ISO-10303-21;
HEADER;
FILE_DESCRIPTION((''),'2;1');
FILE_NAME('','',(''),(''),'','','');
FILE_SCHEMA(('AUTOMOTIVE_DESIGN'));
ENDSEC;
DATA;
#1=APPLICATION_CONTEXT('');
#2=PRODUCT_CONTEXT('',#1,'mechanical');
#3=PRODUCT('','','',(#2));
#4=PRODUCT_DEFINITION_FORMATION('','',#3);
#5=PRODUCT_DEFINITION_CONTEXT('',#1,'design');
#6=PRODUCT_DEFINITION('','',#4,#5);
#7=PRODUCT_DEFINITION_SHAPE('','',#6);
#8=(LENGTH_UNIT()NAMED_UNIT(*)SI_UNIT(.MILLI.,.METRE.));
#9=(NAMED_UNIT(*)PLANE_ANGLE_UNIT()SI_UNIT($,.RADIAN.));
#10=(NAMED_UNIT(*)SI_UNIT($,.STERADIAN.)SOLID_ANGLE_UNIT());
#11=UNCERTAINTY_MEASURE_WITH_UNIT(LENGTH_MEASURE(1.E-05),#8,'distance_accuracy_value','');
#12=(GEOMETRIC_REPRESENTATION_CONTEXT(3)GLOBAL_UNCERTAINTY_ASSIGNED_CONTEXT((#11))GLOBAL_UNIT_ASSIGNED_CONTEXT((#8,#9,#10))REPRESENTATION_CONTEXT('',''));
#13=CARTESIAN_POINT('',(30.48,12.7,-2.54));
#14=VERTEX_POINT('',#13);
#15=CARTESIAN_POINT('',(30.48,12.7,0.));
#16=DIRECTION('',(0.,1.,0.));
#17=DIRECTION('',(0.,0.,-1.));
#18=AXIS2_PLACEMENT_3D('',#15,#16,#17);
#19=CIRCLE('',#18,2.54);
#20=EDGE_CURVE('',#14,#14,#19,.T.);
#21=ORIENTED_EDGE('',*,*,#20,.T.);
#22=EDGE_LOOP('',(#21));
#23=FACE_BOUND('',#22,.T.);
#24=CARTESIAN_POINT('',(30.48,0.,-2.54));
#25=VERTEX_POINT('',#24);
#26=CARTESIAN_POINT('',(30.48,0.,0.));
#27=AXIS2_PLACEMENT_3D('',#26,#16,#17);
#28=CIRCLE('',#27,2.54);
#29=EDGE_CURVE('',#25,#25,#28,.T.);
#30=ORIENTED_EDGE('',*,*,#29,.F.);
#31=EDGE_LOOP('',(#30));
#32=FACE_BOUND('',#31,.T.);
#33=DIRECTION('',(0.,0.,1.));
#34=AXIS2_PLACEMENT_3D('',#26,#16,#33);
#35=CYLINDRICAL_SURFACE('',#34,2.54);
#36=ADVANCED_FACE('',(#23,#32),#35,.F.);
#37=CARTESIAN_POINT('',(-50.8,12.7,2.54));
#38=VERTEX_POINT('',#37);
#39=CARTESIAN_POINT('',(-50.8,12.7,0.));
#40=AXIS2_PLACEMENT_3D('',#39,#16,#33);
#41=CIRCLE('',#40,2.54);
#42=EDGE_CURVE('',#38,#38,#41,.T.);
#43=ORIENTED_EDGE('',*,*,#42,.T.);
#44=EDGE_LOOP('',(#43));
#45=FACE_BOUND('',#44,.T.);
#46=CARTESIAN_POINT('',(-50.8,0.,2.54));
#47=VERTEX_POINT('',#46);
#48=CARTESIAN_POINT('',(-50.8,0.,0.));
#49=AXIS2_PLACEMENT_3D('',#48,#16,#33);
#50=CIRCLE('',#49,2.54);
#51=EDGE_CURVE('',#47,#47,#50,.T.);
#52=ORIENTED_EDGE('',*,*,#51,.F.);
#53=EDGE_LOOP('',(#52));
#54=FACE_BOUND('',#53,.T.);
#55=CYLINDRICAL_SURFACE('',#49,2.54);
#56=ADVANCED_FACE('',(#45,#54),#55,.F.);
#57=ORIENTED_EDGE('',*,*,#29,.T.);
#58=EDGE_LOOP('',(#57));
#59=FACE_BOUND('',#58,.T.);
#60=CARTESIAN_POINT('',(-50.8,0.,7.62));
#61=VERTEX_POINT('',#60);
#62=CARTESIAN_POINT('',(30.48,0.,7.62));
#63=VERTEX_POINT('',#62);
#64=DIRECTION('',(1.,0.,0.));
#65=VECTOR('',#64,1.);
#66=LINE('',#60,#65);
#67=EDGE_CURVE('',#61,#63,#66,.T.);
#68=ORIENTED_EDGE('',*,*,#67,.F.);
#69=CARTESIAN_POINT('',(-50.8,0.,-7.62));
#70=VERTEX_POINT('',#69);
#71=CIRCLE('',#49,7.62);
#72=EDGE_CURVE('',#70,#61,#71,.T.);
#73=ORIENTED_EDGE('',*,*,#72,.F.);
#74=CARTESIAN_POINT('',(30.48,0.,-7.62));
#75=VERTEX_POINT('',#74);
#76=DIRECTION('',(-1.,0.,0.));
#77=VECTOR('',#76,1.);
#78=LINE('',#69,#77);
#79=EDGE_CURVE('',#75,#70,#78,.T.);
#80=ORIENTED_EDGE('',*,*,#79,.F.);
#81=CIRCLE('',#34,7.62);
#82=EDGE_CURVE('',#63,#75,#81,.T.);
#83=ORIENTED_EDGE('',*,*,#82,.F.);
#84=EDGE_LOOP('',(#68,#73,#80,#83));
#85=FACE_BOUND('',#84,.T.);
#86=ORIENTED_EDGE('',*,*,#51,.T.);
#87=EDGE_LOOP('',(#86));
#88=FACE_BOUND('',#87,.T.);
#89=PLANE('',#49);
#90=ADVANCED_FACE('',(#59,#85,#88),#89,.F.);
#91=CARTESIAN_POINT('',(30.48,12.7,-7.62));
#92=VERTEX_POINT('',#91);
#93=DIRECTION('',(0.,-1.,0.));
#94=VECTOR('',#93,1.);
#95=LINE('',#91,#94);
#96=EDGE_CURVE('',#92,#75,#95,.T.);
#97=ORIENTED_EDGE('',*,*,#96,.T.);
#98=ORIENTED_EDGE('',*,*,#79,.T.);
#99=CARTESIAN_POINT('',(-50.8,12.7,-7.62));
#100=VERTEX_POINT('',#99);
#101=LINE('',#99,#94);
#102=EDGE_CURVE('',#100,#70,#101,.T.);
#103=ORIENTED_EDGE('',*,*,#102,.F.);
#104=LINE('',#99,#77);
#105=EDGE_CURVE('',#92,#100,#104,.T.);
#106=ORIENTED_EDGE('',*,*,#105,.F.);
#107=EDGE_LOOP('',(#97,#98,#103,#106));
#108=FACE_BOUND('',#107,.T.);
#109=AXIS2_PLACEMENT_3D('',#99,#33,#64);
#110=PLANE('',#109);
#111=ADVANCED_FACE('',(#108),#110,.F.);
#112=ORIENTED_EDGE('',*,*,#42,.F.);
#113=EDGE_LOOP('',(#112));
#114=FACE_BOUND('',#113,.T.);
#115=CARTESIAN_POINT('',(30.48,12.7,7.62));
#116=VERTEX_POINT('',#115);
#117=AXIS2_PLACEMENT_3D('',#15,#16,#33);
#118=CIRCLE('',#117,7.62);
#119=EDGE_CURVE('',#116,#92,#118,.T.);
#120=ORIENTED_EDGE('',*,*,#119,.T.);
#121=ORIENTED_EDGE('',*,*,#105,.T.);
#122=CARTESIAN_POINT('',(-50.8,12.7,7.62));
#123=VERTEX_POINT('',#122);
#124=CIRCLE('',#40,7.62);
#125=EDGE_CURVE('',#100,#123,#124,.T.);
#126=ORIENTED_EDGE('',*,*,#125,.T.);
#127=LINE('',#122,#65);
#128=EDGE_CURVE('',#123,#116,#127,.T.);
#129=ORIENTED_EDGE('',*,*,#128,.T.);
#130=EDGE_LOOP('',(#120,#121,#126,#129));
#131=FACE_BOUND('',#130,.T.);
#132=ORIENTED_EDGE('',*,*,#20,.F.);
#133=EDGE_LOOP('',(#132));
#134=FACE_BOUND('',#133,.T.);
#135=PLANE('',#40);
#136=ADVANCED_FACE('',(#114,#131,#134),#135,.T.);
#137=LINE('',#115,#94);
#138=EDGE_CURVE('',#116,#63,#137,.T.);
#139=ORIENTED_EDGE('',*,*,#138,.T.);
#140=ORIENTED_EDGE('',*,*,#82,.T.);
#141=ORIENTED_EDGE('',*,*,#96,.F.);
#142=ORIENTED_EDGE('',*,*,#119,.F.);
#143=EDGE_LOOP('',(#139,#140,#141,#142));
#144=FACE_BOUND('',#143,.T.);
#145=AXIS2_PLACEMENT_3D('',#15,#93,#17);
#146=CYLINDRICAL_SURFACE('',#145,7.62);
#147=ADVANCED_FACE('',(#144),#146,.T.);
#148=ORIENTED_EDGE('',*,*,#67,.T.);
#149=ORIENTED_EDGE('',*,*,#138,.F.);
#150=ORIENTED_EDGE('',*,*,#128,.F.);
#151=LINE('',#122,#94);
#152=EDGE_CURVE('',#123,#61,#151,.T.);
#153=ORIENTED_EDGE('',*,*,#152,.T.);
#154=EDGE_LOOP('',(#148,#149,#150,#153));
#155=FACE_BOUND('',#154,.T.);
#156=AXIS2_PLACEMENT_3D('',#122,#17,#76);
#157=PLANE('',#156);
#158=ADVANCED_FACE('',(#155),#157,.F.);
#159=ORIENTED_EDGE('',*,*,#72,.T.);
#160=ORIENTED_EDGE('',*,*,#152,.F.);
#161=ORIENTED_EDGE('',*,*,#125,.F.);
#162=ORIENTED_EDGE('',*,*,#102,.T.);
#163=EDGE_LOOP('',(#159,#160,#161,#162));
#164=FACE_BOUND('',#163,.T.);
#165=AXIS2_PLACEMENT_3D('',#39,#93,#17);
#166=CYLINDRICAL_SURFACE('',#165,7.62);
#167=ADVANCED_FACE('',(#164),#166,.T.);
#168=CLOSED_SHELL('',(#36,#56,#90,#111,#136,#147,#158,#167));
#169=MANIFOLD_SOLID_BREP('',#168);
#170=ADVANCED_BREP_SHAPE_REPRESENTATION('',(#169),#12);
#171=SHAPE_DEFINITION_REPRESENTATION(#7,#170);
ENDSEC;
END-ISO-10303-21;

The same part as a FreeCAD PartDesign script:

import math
import FreeCAD as App
import Part
import Sketcher
Q = App.Units.Quantity

doc = App.newDocument("Part")
params = doc.addObject("Spreadsheet::Sheet", "Params")
for row, (alias, value) in enumerate([
    ("sketch1_radius", "0.3 in"),
    ("sketch1_width", "3.2 in"),
    ("pad1_length", "0.5 in"),
    ("sketch2_diameter", "0.2 in"),
], start=1):
    params.set(f"A{row}", alias)
    params.set(f"B{row}", "=" + value)
    params.setAlias(f"B{row}", alias)

body = doc.addObject("PartDesign::Body", "Body")

# Sketch on XZ plane
sketch1 = body.newObject("Sketcher::SketchObject", "Sketch")
sketch1.AttachmentSupport = (doc.getObject("XZ_Plane"), [""])
sketch1.MapMode = "FlatFace"
sketch1.addGeometry(Part.LineSegment(App.Vector(30, -8, 0), App.Vector(-51, -8, 0)), False)
sketch1.addGeometry(Part.ArcOfCircle(Part.Circle(App.Vector(-51, 0, 0), App.Vector(0, 0, 1), 8), math.radians(90), math.radians(270)), False)
sketch1.addGeometry(Part.LineSegment(App.Vector(-51, 8, 0), App.Vector(30, 8, 0)), False)
sketch1.addGeometry(Part.ArcOfCircle(Part.Circle(App.Vector(30, 0, 0), App.Vector(0, 0, 1), 8), math.radians(-90), math.radians(90)), False)
sketch1.addConstraint(Sketcher.Constraint("Tangent", 0, 2, 1, 2))
sketch1.addConstraint(Sketcher.Constraint("Tangent", 1, 1, 2, 1))
sketch1.addConstraint(Sketcher.Constraint("Tangent", 2, 2, 3, 2))
sketch1.addConstraint(Sketcher.Constraint("Tangent", 3, 1, 0, 1))
sketch1.addConstraint(Sketcher.Constraint("Horizontal", 0))
sketch1.addConstraint(Sketcher.Constraint("Horizontal", 2))
sketch1.addConstraint(Sketcher.Constraint("PointOnObject", 1, 3, -1))
sketch1.addConstraint(Sketcher.Constraint("Radius", 1, Q("0.3 in")))
sketch1.addConstraint(Sketcher.Constraint("DistanceX", 0, 2, 0, 1, Q("3.2 in")))
sketch1.addConstraint(Sketcher.Constraint("DistanceX", 1, 3, -1, 1, Q("2 in")))
sketch1.setExpression("Constraints[7]", "Params.sketch1_radius")
sketch1.setExpression("Constraints[8]", "Params.sketch1_width")
pad1 = body.newObject("PartDesign::Pad", "Pad")
pad1.Profile = sketch1
pad1.setExpression("Length", "Params.pad1_length")
pad1.Reversed = True

# Sketch on XZ plane
sketch2 = body.newObject("Sketcher::SketchObject", "Sketch001")
sketch2.AttachmentSupport = (doc.getObject("XZ_Plane"), [""])
sketch2.MapMode = "FlatFace"
sketch2.AttachmentOffset = App.Placement(App.Vector(0, 0, -0.5 * 25.4), App.Rotation())
sketch2.addGeometry(Part.Circle(App.Vector(-50.8, 0, 0), App.Vector(0, 0, 1), 2.5), False)
sketch2.addGeometry(Part.Circle(App.Vector(30.5, 0, 0), App.Vector(0, 0, 1), 2.5), False)
sketch2.addConstraint(Sketcher.Constraint("Equal", 0, 1))
sketch2.addConstraint(Sketcher.Constraint("PointOnObject", 0, 3, -1))
sketch2.addConstraint(Sketcher.Constraint("PointOnObject", 1, 3, -1))
sketch2.addConstraint(Sketcher.Constraint("Diameter", 0, Q("0.2 in")))
sketch2.addConstraint(Sketcher.Constraint("DistanceX", 0, 3, -1, 1, Q("2 in")))
sketch2.addConstraint(Sketcher.Constraint("DistanceX", -1, 1, 1, 3, Q("1.2 in")))
sketch2.setExpression("Constraints[3]", "Params.sketch2_diameter")
pocket1 = body.newObject("PartDesign::Pocket", "Pocket")
pocket1.Profile = sketch2
pocket1.Type = "ThroughAll"
pocket1.Reversed = True

doc.recompute()
